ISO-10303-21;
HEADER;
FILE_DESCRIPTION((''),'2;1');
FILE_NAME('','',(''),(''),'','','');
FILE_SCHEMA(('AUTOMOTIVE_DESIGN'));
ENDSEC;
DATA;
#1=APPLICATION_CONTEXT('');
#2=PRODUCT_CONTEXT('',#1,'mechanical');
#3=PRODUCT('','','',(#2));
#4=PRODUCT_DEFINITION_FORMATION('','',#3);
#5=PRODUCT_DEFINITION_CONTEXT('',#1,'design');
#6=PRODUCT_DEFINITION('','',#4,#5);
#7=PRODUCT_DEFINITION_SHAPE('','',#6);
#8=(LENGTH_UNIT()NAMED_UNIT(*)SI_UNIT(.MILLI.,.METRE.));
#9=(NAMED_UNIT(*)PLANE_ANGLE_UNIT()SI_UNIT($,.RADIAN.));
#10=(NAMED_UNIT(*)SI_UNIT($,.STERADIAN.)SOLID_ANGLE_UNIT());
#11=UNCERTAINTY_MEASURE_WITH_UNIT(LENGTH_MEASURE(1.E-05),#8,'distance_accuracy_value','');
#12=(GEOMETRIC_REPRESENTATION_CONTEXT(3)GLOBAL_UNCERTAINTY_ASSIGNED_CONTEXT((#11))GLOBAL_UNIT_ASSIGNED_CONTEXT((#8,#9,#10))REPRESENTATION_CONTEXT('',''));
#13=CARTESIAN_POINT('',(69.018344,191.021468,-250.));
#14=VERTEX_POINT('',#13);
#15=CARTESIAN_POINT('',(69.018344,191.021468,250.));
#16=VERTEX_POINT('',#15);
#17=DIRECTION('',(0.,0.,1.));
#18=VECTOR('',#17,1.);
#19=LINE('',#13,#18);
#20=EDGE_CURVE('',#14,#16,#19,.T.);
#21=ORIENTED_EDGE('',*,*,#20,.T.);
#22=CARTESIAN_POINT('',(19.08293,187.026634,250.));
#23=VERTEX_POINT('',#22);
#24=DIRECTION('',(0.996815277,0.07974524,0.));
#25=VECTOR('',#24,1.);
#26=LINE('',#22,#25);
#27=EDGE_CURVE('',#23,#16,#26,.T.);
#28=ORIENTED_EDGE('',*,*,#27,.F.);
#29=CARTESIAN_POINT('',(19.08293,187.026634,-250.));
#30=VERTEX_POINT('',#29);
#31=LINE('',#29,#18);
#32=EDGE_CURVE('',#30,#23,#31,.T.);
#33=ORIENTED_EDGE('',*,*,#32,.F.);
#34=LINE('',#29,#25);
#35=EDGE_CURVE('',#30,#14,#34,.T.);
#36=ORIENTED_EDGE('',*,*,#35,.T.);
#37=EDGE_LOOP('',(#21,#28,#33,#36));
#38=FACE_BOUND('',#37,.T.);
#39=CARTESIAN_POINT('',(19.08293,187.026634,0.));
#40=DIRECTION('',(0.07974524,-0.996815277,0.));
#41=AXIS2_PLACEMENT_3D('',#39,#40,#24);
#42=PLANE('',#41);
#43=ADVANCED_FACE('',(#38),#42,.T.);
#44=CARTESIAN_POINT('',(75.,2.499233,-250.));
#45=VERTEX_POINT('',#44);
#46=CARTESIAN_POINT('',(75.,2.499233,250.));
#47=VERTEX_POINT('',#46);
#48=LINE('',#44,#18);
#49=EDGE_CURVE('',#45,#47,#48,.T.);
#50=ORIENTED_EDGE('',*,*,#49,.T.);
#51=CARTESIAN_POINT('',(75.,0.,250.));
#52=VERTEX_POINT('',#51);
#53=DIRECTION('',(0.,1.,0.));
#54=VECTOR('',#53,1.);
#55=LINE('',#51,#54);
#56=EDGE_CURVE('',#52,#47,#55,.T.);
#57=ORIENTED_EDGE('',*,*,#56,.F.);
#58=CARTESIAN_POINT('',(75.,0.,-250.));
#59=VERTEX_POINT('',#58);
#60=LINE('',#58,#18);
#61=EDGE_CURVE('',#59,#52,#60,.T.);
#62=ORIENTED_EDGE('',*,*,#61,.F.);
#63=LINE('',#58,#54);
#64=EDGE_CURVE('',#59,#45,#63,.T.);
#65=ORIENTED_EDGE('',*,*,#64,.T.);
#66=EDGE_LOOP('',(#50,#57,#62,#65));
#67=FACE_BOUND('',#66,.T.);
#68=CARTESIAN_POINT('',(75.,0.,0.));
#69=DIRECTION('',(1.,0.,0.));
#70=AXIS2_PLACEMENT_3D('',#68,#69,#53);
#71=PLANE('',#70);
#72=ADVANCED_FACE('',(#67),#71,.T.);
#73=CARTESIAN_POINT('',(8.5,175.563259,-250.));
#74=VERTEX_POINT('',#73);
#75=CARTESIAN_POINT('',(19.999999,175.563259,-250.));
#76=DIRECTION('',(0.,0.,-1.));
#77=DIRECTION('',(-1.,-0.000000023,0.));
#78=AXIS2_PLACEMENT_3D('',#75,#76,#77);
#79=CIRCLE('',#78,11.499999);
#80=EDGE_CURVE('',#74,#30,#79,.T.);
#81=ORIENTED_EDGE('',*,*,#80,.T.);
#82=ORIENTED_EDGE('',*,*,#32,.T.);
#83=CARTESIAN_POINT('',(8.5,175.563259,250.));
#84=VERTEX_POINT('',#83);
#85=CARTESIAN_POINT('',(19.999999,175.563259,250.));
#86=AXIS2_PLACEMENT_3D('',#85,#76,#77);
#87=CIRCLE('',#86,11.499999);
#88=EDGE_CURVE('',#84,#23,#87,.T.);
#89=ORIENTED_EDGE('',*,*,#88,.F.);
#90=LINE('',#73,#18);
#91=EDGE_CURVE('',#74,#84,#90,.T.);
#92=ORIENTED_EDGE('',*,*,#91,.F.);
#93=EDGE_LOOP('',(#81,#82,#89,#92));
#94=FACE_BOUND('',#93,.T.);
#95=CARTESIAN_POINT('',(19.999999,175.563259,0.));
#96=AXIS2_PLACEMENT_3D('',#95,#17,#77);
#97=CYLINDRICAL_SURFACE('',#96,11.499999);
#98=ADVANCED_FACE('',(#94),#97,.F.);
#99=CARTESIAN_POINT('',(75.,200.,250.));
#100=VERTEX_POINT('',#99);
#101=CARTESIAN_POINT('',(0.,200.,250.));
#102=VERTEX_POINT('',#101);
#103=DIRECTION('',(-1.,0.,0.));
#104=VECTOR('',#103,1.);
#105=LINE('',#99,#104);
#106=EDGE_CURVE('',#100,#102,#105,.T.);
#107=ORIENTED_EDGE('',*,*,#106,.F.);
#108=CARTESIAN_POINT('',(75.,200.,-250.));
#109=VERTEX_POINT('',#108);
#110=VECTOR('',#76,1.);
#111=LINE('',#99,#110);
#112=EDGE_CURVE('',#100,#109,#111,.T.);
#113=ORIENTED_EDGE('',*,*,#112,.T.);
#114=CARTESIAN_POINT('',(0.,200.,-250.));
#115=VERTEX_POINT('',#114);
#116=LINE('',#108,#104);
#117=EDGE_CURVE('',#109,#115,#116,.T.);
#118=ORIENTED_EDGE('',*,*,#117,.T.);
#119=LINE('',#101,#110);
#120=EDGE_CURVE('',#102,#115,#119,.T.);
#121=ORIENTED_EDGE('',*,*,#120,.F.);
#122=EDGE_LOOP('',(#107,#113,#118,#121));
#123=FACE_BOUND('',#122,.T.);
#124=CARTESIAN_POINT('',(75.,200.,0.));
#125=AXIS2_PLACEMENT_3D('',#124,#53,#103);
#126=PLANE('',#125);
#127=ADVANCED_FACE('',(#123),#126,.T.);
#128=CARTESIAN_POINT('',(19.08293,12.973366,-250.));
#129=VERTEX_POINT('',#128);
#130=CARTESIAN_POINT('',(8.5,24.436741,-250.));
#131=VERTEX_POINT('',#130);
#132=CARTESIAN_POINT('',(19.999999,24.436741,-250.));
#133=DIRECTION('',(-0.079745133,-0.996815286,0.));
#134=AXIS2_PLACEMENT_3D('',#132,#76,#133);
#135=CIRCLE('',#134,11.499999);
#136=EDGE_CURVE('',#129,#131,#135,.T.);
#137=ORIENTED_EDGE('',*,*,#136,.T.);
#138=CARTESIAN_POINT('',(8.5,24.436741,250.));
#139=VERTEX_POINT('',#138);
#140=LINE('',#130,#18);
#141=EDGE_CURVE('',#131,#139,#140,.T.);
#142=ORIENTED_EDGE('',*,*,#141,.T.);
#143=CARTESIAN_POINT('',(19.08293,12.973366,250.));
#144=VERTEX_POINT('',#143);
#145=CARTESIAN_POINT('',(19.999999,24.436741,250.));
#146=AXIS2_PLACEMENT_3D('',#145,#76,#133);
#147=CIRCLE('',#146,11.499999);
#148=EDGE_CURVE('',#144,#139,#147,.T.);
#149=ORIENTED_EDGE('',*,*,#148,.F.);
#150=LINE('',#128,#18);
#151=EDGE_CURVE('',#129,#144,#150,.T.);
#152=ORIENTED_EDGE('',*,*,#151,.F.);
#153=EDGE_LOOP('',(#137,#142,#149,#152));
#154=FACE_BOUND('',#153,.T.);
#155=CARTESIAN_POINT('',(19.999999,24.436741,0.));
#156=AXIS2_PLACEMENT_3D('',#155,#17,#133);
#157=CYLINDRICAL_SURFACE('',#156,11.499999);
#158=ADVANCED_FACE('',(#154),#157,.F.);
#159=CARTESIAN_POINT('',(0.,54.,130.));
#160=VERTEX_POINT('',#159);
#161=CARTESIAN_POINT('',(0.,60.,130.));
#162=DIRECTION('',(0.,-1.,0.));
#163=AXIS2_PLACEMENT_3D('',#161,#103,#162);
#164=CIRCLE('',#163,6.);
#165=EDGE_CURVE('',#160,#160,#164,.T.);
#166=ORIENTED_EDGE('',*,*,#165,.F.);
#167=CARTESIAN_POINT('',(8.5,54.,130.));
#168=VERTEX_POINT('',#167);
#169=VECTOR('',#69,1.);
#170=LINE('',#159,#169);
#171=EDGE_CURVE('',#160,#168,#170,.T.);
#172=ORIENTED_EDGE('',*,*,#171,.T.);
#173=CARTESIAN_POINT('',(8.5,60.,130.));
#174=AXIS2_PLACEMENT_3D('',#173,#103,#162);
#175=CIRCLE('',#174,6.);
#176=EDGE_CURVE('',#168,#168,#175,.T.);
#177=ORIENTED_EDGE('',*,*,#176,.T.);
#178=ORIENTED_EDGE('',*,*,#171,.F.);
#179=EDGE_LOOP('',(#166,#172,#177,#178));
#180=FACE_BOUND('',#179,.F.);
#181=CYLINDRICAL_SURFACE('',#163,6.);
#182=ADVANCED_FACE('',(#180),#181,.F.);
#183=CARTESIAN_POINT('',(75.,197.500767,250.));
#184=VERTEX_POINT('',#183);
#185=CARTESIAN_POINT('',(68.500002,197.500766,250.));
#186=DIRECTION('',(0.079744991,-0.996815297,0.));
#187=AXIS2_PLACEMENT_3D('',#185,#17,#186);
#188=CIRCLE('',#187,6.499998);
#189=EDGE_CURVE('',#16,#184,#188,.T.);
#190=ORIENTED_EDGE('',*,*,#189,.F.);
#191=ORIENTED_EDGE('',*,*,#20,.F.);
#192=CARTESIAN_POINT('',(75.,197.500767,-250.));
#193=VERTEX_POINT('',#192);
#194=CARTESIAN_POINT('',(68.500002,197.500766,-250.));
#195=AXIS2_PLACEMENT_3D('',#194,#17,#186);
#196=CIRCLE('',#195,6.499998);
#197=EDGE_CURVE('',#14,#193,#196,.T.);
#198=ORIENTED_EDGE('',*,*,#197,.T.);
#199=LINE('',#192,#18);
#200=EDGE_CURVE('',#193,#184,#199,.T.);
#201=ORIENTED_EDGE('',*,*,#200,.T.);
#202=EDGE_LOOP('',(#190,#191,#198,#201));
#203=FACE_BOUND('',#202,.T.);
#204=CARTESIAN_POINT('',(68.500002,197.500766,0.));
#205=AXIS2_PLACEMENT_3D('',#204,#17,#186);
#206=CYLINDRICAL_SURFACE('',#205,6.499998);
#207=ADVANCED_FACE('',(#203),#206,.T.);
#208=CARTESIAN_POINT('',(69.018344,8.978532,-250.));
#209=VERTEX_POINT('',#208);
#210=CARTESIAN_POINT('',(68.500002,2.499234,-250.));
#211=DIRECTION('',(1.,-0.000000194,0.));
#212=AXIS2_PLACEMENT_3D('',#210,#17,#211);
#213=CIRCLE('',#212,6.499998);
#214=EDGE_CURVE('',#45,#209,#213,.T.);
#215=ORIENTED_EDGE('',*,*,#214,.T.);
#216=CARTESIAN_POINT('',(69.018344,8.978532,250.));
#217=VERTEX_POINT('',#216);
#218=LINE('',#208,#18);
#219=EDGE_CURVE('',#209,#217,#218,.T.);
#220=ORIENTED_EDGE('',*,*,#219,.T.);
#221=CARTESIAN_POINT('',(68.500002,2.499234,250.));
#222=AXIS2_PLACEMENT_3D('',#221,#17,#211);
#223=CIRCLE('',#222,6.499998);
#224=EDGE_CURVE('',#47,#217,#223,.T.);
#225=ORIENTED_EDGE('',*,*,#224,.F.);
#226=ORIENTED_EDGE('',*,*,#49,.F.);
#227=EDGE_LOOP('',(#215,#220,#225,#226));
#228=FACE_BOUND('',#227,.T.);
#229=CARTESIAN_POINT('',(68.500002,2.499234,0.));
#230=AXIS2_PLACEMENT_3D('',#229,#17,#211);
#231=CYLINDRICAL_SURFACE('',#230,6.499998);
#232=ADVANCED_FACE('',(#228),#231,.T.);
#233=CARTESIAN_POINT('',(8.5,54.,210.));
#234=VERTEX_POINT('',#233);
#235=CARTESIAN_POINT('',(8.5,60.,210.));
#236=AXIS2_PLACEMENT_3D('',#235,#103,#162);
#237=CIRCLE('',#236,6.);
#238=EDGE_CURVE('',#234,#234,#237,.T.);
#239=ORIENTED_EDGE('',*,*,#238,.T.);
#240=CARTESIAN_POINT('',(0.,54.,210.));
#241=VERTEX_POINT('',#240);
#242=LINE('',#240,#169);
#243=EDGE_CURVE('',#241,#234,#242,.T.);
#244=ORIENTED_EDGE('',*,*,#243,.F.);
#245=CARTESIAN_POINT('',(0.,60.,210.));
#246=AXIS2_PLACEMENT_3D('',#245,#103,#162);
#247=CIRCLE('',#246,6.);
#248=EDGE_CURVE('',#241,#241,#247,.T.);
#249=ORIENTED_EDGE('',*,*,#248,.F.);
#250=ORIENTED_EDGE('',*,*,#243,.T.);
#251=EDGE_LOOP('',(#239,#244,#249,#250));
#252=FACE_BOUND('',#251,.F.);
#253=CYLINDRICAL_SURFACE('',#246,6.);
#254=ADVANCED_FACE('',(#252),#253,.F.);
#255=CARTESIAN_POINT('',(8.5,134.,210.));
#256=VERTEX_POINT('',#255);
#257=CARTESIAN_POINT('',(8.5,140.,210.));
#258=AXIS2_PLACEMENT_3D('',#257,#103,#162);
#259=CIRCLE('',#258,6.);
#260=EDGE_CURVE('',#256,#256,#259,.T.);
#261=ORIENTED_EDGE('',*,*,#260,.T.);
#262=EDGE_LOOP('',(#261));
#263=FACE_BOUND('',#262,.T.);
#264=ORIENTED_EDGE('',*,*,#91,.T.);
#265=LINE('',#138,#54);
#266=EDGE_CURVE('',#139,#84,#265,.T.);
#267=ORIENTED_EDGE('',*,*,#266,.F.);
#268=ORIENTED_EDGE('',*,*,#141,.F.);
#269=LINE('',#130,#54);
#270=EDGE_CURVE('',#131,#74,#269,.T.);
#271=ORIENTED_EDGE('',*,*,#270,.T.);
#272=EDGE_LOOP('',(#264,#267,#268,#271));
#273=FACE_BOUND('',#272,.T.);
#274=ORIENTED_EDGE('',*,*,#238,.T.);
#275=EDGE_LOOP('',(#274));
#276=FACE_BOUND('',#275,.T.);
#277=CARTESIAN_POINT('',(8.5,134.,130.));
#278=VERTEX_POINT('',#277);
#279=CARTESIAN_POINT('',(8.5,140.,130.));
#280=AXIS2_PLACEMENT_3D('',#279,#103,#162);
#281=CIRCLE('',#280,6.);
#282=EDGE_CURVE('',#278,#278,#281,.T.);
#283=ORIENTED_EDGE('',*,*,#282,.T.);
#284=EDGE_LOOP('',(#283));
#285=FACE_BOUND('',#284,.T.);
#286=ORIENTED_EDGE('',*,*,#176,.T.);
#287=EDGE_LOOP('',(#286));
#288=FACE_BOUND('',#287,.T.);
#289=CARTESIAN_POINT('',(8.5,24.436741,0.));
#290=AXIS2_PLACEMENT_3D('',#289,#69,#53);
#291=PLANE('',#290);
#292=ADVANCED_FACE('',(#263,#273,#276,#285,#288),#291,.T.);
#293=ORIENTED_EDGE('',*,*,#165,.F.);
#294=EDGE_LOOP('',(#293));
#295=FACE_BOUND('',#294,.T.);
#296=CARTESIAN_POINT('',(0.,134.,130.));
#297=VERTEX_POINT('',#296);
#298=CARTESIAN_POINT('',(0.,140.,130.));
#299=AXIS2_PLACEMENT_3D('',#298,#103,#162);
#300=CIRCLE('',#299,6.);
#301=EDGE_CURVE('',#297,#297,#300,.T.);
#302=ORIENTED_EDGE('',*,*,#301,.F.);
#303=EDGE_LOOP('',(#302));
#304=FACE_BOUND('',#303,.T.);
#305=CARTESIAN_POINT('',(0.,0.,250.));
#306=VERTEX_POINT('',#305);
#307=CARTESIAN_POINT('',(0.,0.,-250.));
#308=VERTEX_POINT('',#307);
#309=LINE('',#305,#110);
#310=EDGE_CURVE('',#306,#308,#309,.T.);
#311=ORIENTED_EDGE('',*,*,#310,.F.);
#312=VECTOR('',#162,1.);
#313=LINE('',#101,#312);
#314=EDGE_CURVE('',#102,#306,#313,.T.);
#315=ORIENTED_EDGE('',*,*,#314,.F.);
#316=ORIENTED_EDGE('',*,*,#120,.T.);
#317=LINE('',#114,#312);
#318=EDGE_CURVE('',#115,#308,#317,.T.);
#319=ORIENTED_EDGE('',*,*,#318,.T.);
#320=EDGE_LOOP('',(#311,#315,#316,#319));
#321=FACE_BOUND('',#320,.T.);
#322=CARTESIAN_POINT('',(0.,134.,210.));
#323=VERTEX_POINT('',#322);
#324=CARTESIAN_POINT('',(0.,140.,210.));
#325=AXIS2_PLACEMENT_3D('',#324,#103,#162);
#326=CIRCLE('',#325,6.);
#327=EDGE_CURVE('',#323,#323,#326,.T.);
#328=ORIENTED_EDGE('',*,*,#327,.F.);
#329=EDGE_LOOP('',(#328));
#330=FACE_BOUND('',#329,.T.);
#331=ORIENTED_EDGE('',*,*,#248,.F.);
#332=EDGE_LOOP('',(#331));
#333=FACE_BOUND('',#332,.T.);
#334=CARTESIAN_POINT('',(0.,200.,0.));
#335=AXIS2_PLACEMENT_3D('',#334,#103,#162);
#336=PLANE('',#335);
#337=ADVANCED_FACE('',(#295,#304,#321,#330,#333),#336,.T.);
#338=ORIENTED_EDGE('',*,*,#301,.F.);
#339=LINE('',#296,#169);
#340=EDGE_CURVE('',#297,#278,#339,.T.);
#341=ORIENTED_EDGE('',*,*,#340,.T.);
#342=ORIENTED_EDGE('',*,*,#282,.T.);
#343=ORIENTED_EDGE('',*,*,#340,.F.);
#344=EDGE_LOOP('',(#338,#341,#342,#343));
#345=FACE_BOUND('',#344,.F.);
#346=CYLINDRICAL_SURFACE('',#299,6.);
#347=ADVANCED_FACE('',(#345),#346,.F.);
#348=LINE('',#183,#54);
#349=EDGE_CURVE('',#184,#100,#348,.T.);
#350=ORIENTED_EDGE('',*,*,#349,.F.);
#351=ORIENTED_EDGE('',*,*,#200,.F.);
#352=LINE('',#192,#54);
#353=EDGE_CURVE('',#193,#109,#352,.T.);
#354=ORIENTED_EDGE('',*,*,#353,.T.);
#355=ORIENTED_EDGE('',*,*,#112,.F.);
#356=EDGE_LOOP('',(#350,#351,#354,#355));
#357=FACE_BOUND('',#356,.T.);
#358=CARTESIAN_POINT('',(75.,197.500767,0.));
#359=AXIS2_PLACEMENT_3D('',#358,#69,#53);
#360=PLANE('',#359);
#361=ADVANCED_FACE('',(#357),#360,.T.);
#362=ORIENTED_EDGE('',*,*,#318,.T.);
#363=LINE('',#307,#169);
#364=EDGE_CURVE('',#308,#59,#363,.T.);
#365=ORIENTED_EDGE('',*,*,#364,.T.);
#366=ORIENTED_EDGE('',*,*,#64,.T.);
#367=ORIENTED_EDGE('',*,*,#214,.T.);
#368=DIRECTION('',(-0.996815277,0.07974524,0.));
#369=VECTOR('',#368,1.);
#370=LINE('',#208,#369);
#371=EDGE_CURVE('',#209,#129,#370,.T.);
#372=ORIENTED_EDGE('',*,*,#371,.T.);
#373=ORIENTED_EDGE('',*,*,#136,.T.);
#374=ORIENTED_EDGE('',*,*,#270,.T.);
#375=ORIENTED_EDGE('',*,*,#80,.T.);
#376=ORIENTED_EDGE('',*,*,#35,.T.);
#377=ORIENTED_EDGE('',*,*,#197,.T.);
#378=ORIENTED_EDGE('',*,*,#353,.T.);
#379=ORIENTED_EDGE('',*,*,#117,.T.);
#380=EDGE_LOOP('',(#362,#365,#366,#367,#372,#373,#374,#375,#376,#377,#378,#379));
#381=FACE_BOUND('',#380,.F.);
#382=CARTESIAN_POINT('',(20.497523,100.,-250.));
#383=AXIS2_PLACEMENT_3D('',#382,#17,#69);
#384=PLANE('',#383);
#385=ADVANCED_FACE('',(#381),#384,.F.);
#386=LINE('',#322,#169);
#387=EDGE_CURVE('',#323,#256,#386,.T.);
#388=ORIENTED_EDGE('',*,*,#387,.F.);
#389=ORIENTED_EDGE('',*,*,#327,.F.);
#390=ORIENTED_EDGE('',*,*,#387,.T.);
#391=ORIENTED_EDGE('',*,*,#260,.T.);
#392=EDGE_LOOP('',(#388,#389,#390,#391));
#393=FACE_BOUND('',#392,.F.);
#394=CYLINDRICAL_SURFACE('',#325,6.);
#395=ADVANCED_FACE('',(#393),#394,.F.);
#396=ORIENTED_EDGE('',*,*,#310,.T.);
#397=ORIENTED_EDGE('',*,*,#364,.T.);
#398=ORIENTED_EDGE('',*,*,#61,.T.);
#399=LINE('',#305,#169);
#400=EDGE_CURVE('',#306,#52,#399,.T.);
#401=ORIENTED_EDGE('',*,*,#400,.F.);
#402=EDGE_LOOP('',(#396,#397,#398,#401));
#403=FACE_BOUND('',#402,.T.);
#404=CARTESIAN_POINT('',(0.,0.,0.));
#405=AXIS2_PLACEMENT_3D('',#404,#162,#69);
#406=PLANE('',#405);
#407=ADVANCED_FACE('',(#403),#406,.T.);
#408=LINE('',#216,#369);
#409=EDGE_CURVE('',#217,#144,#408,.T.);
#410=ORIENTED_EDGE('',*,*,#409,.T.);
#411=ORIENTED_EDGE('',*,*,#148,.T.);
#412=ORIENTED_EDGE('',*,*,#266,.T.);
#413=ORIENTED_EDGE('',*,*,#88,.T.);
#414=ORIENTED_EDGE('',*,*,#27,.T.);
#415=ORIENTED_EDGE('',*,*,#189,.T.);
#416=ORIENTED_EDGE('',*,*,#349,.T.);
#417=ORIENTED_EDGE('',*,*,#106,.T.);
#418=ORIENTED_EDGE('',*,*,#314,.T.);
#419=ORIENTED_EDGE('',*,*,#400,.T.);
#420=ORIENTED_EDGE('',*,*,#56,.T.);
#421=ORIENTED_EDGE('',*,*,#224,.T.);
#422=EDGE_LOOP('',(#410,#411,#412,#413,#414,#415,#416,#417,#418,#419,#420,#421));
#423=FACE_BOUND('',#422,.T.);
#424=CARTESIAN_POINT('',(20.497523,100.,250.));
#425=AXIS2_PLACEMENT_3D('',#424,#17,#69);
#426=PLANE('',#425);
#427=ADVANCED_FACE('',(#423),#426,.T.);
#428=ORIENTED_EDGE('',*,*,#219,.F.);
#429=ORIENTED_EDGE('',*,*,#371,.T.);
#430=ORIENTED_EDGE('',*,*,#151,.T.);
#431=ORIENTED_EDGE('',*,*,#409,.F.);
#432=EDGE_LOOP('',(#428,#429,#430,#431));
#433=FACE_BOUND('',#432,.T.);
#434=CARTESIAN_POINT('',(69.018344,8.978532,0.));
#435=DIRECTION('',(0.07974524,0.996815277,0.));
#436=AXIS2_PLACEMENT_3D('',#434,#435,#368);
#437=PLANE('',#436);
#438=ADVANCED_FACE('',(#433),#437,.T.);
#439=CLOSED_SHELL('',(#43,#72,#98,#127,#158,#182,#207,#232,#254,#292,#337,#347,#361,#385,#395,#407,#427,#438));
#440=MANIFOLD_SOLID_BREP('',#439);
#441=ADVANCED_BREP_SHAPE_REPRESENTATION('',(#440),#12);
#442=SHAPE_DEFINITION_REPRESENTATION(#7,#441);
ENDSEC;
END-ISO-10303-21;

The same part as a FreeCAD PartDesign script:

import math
import FreeCAD as App
import Part
import Sketcher
from FreeCAD import Vector
Q = App.Units.Quantity

doc = App.newDocument("Part")
body = doc.addObject("PartDesign::Body", "Body")

# Sketch on XY plane
sketch1 = doc.addObject("Sketcher::SketchObject", "Sketch")
body.addObject(sketch1)
sketch1.AttachmentSupport = (doc.XY_Plane, [""])
sketch1.MapMode = "FlatFace"
sketch1.addGeometry([
    Part.LineSegment(Vector(0, 0, 0), Vector(75, 0, 0)),  # 0
    Part.LineSegment(Vector(75, 0, 0), Vector(75, 2.499233, 0)),  # 1
    Part.ArcOfCircle(Part.Circle(Vector(68.500002, 2.499234, 0), Vector(0, 0, 1), 6.499998), math.radians(-0.000011), math.radians(85.426092)),  # 2
    Part.LineSegment(Vector(69.018344, 8.978532, 0), Vector(19.08293, 12.973366, 0)),  # 3
    Part.ArcOfCircle(Part.Circle(Vector(19.999999, 24.436741, 0), Vector(0, 0, 1), 11.499999), math.radians(179.999999), math.radians(265.426084)),  # 4
    Part.LineSegment(Vector(8.5, 24.436741, 0), Vector(8.5, 175.563259, 0)),  # 5
    Part.ArcOfCircle(Part.Circle(Vector(19.999999, 175.563259, 0), Vector(0, 0, 1), 11.499999), math.radians(94.573916), math.radians(180.000001)),  # 6
    Part.LineSegment(Vector(19.08293, 187.026634, 0), Vector(69.018344, 191.021468, 0)),  # 7
    Part.ArcOfCircle(Part.Circle(Vector(68.500002, 197.500766, 0), Vector(0, 0, 1), 6.499998), math.radians(-85.426092), math.radians(0.000011)),  # 8
    Part.LineSegment(Vector(75, 197.500767, 0), Vector(75, 200, 0)),  # 9
    Part.LineSegment(Vector(75, 200, 0), Vector(0, 200, 0)),  # 10
    Part.LineSegment(Vector(0, 200, 0), Vector(0, 0, 0)),  # 11
], False)
sketch1.addConstraint([
    Sketcher.Constraint("Coincident", 0, 2, 1, 1),
    Sketcher.Constraint("Coincident", 1, 2, 2, 1),
    Sketcher.Constraint("Coincident", 2, 2, 3, 1),
    Sketcher.Constraint("Coincident", 3, 2, 4, 2),
    Sketcher.Constraint("Coincident", 4, 1, 5, 1),
    Sketcher.Constraint("Coincident", 5, 2, 6, 2),
    Sketcher.Constraint("Coincident", 6, 1, 7, 1),
    Sketcher.Constraint("Coincident", 7, 2, 8, 1),
    Sketcher.Constraint("Coincident", 8, 2, 9, 1),
    Sketcher.Constraint("Coincident", 9, 2, 10, 1),
    Sketcher.Constraint("Coincident", 10, 2, 11, 1),
    Sketcher.Constraint("Coincident", 11, 2, 0, 1),
    Sketcher.Constraint("Horizontal", 0),
    Sketcher.Constraint("Vertical", 1),
    Sketcher.Constraint("Vertical", 5),
    Sketcher.Constraint("Vertical", 9),
    Sketcher.Constraint("Horizontal", 10),
    Sketcher.Constraint("Vertical", 11),
    Sketcher.Constraint("Coincident", 11, 2, -1, 1),
    Sketcher.Constraint("Radius", 2, Q("6.499998 mm")),
    Sketcher.Constraint("Radius", 4, Q("11.499999 mm")),
    Sketcher.Constraint("Radius", 6, Q("11.499999 mm")),
    Sketcher.Constraint("Radius", 8, Q("6.499998 mm")),
    Sketcher.Constraint("DistanceX", 0, 1, 0, 2, Q("75 mm")),
    Sketcher.Constraint("DistanceX", 10, 2, 10, 1, Q("75 mm")),
    Sketcher.Constraint("DistanceY", 11, 2, 11, 1, Q("200 mm")),
    Sketcher.Constraint("DistanceX", -1, 1, 4, 3, Q("19.999999 mm")),
    Sketcher.Constraint("DistanceY", 1, 2, 2, 2, Q("6.479299 mm")),
    Sketcher.Constraint("DistanceY", 7, 2, 8, 2, Q("6.479299 mm")),
    Sketcher.Constraint("DistanceY", 1, 1, 1, 2, Q("2.499233 mm")),
    Sketcher.Constraint("DistanceY", 5, 1, 5, 2, Q("151.126518 mm")),
    Sketcher.Constraint("DistanceY", 9, 1, 9, 2, Q("2.499233 mm")),
    Sketcher.Constraint("DistanceY", -1, 1, 4, 3, Q("24.436741 mm")),
    Sketcher.Constraint("DistanceY", -1, 1, 6, 3, Q("175.563259 mm")),
    Sketcher.Constraint("DistanceX", -1, 1, 3, 2, Q("19.08293 mm")),
    Sketcher.Constraint("DistanceY", -1, 1, 4, 1, Q("24.436741 mm")),
    Sketcher.Constraint("DistanceX", -1, 1, 6, 1, Q("19.08293 mm")),
    Sketcher.Constraint("DistanceY", 2, 3, 8, 3, Q("195.001531 mm")),
    Sketcher.Constraint("DistanceY", 2, 3, 3, 2, Q("10.474132 mm")),
])
pad1 = doc.addObject("PartDesign::Pad", "Pad")
body.addObject(pad1)
pad1.Profile = sketch1
pad1.Length = 500
pad1.Midplane = True

# Sketch on YZ plane
sketch2 = doc.addObject("Sketcher::SketchObject", "Sketch001")
body.addObject(sketch2)
sketch2.AttachmentSupport = (doc.YZ_Plane, [""])
sketch2.MapMode = "FlatFace"
sketch2.addGeometry([
    Part.Circle(Vector(60, 210, 0), Vector(0, 0, 1), 6),
    Part.Circle(Vector(140, 210, 0), Vector(0, 0, 1), 6),
    Part.Circle(Vector(60, 130, 0), Vector(0, 0, 1), 6),
    Part.Circle(Vector(140, 130, 0), Vector(0, 0, 1), 6),
], False)
sketch2.addConstraint([
    Sketcher.Constraint("Equal", 0, 1),
    Sketcher.Constraint("Equal", 1, 2),
    Sketcher.Constraint("Equal", 2, 3),
    Sketcher.Constraint("Horizontal", 0, 3, 1, 3),
    Sketcher.Constraint("Horizontal", 2, 3, 3, 3),
    Sketcher.Constraint("Vertical", 0, 3, 2, 3),
    Sketcher.Constraint("Vertical", 1, 3, 3, 3),
    Sketcher.Constraint("Diameter", 0, Q("12 mm")),
    Sketcher.Constraint("DistanceX", -1, 1, 0, 3, Q("60 mm")),
    Sketcher.Constraint("DistanceY", -1, 1, 0, 3, Q("210 mm")),
    Sketcher.Constraint("DistanceX", -1, 1, 1, 3, Q("140 mm")),
    Sketcher.Constraint("DistanceY", -1, 1, 2, 3, Q("130 mm")),
])
pocket1 = doc.addObject("PartDesign::Pocket", "Pocket")
body.addObject(pocket1)
pocket1.Profile = sketch2
pocket1.Type = "ThroughAll"
pocket1.Reversed = True

doc.recompute()
